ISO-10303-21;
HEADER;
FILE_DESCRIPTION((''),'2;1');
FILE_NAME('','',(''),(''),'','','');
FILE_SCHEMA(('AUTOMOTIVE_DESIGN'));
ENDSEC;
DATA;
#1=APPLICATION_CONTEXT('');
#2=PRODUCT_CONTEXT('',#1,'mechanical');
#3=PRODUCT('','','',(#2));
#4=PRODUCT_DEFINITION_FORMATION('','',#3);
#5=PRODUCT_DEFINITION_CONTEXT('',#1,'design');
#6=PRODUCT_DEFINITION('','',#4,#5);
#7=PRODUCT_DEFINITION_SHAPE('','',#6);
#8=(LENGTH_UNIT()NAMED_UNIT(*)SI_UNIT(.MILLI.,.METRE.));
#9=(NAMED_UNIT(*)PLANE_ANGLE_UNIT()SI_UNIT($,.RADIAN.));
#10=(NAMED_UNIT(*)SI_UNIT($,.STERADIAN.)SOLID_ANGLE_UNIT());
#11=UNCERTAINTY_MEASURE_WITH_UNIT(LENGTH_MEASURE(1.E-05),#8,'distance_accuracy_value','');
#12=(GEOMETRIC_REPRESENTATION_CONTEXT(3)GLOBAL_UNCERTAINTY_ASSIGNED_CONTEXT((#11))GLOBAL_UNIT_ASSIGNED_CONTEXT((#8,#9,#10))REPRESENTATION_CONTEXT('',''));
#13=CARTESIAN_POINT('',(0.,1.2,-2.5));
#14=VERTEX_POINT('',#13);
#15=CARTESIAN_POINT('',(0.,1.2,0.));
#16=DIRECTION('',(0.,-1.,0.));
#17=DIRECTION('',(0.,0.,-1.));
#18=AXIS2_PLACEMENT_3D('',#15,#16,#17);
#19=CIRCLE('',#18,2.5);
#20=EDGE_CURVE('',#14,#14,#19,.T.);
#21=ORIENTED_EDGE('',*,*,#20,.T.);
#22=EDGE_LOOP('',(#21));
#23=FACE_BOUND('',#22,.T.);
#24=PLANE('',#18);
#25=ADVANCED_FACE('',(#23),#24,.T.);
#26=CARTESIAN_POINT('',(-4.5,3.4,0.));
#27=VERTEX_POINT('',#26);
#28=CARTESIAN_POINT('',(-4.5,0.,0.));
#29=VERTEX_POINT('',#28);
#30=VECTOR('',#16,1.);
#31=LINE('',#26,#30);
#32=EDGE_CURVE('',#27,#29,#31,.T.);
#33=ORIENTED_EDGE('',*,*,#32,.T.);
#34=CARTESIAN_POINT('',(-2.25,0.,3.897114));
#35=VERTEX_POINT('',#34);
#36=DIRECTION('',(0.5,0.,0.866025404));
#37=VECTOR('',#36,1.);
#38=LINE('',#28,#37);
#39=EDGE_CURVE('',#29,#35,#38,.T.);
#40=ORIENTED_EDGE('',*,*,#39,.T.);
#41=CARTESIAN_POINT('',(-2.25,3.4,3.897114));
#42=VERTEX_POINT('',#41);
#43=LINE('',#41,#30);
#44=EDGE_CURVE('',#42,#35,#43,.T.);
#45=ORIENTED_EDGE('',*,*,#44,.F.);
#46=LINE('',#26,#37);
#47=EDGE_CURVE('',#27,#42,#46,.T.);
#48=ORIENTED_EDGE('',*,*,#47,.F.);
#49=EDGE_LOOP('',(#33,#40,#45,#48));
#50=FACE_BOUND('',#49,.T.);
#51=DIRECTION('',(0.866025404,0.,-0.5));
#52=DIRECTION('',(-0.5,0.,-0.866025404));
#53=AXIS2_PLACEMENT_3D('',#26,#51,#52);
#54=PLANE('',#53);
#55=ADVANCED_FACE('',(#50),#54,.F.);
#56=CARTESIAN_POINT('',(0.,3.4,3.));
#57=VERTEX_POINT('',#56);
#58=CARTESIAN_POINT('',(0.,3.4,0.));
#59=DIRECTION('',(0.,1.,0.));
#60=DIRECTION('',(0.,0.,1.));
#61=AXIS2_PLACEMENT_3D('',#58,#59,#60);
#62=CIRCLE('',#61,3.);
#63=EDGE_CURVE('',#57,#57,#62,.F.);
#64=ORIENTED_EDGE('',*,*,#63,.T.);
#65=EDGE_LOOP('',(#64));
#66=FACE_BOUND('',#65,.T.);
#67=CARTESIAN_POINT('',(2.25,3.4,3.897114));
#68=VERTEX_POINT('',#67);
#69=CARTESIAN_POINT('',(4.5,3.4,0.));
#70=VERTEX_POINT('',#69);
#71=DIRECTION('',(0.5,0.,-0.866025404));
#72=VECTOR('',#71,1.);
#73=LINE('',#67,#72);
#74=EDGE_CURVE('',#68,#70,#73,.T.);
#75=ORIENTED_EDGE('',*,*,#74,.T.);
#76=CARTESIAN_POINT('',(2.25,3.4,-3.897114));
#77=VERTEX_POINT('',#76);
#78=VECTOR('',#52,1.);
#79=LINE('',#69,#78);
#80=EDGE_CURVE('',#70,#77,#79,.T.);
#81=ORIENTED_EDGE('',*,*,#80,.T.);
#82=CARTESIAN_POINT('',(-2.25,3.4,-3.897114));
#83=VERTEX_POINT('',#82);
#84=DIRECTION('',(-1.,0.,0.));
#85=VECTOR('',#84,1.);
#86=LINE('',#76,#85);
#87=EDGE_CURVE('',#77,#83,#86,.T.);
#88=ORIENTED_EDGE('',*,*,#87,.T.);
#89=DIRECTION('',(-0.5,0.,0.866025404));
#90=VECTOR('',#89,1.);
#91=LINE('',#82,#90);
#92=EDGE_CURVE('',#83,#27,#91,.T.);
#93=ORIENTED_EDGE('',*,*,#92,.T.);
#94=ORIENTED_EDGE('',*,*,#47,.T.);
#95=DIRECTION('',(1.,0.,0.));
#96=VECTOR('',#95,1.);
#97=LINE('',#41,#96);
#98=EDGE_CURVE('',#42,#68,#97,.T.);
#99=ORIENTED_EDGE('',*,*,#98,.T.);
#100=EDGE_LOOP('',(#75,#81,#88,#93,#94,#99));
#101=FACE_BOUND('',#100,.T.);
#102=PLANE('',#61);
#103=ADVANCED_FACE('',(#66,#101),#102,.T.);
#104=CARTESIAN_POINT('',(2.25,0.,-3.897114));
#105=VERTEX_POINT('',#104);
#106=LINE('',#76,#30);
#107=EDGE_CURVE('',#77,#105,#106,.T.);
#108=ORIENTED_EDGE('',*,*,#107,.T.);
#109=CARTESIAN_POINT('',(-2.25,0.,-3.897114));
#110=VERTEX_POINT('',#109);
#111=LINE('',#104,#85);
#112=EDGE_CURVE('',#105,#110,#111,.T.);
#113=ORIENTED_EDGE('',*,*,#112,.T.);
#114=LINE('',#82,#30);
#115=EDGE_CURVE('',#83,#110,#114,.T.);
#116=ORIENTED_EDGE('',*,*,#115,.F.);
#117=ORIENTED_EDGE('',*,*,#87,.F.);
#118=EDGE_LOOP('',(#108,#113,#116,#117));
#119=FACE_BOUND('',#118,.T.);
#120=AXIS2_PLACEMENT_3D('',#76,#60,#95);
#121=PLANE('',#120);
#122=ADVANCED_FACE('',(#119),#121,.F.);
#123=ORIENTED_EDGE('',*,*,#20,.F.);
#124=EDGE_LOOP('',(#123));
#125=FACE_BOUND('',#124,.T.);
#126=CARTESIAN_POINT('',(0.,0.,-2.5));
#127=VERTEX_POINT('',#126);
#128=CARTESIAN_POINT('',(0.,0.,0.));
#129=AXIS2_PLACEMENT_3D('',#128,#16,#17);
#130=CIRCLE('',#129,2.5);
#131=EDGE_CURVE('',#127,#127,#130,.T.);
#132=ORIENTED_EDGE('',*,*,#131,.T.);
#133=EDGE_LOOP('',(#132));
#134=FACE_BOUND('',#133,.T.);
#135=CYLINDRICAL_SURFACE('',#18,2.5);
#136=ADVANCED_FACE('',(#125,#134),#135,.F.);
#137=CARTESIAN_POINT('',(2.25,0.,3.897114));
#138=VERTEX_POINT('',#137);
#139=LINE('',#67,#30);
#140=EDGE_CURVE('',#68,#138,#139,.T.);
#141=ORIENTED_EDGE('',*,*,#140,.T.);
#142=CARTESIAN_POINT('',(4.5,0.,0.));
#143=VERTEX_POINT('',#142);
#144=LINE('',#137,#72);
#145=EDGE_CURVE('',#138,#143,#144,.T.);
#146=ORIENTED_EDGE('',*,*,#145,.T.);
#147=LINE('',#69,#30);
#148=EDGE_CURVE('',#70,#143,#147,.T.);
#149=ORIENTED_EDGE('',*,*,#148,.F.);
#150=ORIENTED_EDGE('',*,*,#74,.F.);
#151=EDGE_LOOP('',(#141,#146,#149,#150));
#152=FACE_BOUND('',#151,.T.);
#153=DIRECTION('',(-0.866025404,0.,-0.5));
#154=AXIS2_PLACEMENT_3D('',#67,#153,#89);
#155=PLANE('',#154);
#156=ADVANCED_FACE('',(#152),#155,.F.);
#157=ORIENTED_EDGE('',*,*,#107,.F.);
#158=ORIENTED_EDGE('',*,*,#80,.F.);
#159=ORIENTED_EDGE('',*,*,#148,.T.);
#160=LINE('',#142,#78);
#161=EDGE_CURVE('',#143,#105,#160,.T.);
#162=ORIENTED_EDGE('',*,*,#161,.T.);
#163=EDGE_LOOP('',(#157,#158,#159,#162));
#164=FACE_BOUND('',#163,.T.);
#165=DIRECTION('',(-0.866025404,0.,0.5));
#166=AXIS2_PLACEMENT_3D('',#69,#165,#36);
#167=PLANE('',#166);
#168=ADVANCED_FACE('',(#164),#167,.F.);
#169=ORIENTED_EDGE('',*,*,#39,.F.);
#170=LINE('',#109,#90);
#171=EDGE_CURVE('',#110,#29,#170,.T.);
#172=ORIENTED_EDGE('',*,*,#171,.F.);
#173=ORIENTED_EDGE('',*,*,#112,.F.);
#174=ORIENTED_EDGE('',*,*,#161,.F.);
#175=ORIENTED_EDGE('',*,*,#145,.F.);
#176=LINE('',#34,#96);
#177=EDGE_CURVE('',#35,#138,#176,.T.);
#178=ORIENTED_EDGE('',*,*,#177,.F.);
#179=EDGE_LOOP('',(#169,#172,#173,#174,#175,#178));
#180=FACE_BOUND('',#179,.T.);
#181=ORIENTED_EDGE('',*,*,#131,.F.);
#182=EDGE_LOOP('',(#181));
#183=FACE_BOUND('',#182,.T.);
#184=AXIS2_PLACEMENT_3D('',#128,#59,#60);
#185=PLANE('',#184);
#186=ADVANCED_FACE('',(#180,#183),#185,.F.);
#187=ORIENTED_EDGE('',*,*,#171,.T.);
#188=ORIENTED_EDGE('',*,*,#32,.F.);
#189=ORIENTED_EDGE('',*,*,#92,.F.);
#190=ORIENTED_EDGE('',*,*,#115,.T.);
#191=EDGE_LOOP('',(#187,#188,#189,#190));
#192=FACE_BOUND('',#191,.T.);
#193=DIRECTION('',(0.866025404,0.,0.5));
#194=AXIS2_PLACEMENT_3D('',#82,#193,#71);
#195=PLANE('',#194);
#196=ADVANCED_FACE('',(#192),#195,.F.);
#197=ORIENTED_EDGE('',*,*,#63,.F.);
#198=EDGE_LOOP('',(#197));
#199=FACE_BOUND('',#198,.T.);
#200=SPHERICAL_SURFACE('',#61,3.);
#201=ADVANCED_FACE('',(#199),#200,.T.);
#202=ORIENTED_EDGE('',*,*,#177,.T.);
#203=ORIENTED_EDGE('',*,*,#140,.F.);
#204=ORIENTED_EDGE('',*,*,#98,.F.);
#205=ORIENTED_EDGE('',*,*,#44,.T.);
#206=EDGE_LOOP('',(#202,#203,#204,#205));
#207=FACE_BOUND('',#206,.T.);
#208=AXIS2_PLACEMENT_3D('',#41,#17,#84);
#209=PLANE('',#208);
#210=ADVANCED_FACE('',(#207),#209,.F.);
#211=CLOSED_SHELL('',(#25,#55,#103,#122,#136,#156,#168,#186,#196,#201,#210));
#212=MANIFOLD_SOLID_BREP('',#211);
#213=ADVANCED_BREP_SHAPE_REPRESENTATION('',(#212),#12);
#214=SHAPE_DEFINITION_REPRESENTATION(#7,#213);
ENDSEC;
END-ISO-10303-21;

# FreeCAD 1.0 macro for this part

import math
import FreeCAD as App
import Part
import Sketcher
Q = App.Units.Quantity


def add_polygon(sketch, points):
    """Adds a closed chain of lines whose ends are joined by coincident constraints."""
    first, n = sketch.GeometryCount, len(points)
    for a, b in zip(points, points[1:] + points[:1]):
        sketch.addGeometry(Part.LineSegment(App.Vector(*a, 0), App.Vector(*b, 0)), False)
    for i in range(n):
        sketch.addConstraint(Sketcher.Constraint("Coincident", first + i, 2, first + (i + 1) % n, 1))

doc = App.newDocument("Part")
params = doc.addObject("Spreadsheet::Sheet", "Params")
for row, (alias, value) in enumerate([
    ("sketch1_width", "4.5 mm"),
    ("pad1_length", "3.4 mm"),
    ("sketch2_radius", "3 mm"),
    ("revolution_angle", "360 deg"),
    ("sketch3_diameter", "5 mm"),
    ("pocket1_length", "1.2 mm"),
], start=1):
    params.set(f"A{row}", alias)
    params.set(f"B{row}", "=" + value)
    params.setAlias(f"B{row}", alias)

body = doc.addObject("PartDesign::Body", "Body")

sketch1 = doc.addObject("Sketcher::SketchObject", "Sketch")
body.addObject(sketch1)
sketch1.AttachmentSupport = (doc.XZ_Plane, [""])
sketch1.MapMode = "FlatFace"
add_polygon(sketch1, [(2.25, -3.897114), (-2.25, -3.897114), (-4.5, 0), (-2.25, 3.897114), (2.25, 3.897114), (4.5, 0)])
sketch1.addConstraint([
    Sketcher.Constraint("Horizontal", 0),
    Sketcher.Constraint("Horizontal", 3),
    Sketcher.Constraint("Symmetric", 0, 2, 3, 2, -1, 1),
    Sketcher.Constraint("Symmetric", 1, 2, 4, 2, -1, 1),
    Sketcher.Constraint("PointOnObject", 1, 2, -1),
    Sketcher.Constraint("Parallel", 2, 5),
    Sketcher.Constraint("Vertical", 0, 2, 2, 2),
    Sketcher.Constraint("Angle", 1, Q("120 deg")),
    Sketcher.Constraint("DistanceX", 0, 2, 0, 1, Q("4.5 mm")),
    Sketcher.Constraint("DistanceX", 1, 2, 4, 2, Q("9 mm")),
])
sketch1.setExpression("Constraints[14]", "Params.sketch1_width")
pad1 = doc.addObject("PartDesign::Pad", "Pad")
body.addObject(pad1)
pad1.Profile = sketch1
pad1.setExpression("Length", "Params.pad1_length")
pad1.Reversed = True

sketch2 = doc.addObject("Sketcher::SketchObject", "Sketch001")
body.addObject(sketch2)
sketch2.AttachmentSupport = (doc.XZ_Plane, [""])
sketch2.MapMode = "FlatFace"
sketch2.AttachmentOffset = App.Placement(App.Vector(0, 0, -3.4), App.Rotation())
sketch2.addGeometry([
    Part.LineSegment(App.Vector(0, -3, 0), App.Vector(0, 3, 0)),
    Part.ArcOfCircle(Part.Circle(App.Vector(0, 0, 0), App.Vector(0, 0, 1), 3), math.radians(-90), math.radians(90)),
], False)
sketch2.addConstraint([
    Sketcher.Constraint("Coincident", 0, 1, 1, 1),
    Sketcher.Constraint("Coincident", 1, 2, 0, 2),
    Sketcher.Constraint("Vertical", 0),
    Sketcher.Constraint("Coincident", 1, 3, -1, 1),
    Sketcher.Constraint("PointOnObject", 0, 1, -2),
    Sketcher.Constraint("Radius", 1, Q("3 mm")),
])
sketch2.setExpression("Constraints[5]", "Params.sketch2_radius")
revolution = doc.addObject("PartDesign::Revolution", "Revolution")
body.addObject(revolution)
revolution.Profile = sketch2
revolution.ReferenceAxis = (sketch2, ["V_Axis"])
revolution.setExpression("Angle", "Params.revolution_angle")

sketch3 = doc.addObject("Sketcher::SketchObject", "Sketch002")
body.addObject(sketch3)
sketch3.AttachmentSupport = (doc.XZ_Plane, [""])
sketch3.MapMode = "FlatFace"
sketch3.addGeometry(Part.Circle(App.Vector(0, 0, 0), App.Vector(0, 0, 1), 2.5), False)
sketch3.addConstraint([
    Sketcher.Constraint("Coincident", 0, 3, -1, 1),
    Sketcher.Constraint("Diameter", 0, Q("5 mm")),
])
sketch3.setExpression("Constraints[1]", "Params.sketch3_diameter")
pocket1 = doc.addObject("PartDesign::Pocket", "Pocket")
body.addObject(pocket1)
pocket1.Profile = sketch3
pocket1.setExpression("Length", "Params.pocket1_length")

doc.recompute()
